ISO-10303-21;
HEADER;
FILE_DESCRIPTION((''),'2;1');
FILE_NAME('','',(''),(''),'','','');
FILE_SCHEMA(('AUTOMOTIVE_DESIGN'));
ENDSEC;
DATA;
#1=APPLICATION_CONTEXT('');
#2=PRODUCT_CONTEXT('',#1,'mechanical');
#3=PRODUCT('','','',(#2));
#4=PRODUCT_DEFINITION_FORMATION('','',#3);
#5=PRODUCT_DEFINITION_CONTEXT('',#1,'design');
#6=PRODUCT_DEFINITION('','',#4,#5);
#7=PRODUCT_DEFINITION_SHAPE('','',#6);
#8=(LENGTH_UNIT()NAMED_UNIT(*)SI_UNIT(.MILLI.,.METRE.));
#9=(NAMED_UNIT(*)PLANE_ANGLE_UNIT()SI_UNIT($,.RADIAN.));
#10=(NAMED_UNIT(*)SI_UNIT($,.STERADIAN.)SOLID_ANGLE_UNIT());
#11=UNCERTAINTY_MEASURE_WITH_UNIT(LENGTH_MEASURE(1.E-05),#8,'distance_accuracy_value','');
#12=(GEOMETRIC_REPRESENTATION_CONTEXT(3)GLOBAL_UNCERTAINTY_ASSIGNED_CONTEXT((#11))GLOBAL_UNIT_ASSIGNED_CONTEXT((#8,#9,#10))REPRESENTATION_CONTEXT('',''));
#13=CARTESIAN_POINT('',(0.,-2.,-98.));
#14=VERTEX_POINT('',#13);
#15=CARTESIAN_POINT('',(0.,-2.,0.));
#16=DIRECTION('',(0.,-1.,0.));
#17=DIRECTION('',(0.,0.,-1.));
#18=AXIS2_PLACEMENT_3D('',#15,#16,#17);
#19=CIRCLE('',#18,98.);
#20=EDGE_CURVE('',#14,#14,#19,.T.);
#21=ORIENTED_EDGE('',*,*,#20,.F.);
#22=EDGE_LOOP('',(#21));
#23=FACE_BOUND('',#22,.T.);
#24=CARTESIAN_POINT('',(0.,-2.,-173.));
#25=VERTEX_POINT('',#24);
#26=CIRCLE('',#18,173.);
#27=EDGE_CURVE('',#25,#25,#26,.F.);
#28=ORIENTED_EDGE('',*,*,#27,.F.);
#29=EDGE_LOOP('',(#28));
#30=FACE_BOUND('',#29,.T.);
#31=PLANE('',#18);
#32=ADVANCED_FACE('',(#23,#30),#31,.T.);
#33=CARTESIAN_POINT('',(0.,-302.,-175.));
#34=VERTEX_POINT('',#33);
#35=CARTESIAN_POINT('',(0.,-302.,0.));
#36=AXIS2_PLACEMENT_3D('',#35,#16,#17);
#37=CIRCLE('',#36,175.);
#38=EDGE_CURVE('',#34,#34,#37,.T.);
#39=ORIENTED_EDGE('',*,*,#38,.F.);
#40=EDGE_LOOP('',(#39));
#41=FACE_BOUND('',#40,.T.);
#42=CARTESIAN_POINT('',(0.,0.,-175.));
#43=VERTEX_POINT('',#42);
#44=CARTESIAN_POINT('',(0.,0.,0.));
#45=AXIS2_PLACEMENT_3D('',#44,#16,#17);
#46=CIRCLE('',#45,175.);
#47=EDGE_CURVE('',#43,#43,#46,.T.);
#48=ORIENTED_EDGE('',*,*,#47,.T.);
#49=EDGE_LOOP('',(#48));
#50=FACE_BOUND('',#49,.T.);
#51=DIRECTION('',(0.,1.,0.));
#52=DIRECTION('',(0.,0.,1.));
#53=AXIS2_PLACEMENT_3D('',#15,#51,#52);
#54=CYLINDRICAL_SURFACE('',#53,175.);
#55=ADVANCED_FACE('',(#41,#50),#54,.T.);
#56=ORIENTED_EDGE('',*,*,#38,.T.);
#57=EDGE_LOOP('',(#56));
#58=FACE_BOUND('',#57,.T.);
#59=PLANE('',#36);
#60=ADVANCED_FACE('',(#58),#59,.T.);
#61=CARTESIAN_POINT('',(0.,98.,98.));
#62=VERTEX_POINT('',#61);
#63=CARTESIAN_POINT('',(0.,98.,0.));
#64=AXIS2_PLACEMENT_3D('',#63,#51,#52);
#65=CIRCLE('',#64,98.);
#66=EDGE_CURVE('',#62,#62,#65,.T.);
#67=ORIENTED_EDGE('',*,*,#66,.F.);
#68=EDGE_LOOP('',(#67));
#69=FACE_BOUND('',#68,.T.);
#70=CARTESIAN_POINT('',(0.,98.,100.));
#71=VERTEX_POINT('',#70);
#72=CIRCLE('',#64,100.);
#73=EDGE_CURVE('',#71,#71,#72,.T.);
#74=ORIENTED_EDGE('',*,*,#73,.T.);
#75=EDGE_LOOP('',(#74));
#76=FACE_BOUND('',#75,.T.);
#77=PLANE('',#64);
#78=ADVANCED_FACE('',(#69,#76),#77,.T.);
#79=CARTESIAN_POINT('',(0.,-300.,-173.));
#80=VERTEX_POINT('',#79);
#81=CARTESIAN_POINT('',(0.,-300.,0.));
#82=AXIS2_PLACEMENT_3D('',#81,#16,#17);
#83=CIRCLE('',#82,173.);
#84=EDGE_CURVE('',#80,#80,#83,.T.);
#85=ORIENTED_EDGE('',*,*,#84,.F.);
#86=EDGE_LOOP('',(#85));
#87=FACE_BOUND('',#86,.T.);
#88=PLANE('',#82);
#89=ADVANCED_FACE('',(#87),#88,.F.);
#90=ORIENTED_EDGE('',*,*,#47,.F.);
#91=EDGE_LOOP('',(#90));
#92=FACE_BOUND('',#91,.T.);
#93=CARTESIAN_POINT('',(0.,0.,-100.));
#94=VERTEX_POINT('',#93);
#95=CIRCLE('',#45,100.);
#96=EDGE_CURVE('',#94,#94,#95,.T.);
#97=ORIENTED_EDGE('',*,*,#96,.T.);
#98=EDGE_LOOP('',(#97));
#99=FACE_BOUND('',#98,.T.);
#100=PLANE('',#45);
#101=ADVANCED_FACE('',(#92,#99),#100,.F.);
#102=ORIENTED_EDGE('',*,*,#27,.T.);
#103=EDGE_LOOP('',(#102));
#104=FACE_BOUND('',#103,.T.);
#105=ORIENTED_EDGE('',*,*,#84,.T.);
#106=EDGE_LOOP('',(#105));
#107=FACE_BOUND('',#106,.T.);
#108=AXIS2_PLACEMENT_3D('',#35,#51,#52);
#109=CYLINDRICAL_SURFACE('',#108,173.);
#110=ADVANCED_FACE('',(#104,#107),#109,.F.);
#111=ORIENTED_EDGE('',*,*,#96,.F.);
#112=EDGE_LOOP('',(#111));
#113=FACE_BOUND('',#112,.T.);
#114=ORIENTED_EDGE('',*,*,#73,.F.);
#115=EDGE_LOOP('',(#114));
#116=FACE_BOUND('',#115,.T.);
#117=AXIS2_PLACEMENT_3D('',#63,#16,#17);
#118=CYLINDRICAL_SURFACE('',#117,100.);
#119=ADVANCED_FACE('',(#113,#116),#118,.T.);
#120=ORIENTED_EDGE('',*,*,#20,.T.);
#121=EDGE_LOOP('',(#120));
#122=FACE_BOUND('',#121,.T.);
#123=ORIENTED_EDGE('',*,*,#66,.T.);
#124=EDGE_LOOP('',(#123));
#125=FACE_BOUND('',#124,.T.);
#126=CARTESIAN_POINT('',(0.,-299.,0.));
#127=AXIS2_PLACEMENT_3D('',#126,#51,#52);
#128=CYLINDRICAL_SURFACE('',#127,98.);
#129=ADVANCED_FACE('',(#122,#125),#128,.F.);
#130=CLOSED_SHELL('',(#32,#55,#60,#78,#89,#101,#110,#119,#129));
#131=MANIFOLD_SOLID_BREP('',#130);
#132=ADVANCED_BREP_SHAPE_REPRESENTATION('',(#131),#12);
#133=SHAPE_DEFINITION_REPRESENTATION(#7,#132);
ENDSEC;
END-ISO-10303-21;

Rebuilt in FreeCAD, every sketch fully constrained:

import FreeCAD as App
import Part
import Sketcher

doc = App.newDocument("Part")
body = doc.addObject("PartDesign::Body", "Body")

# Sketch on XZ plane
sketch1 = body.newObject("Sketcher::SketchObject", "Sketch")
sketch1.AttachmentSupport = (doc.getObject("XZ_Plane"), [""])
sketch1.MapMode = "FlatFace"
sketch1.addGeometry(Part.Circle(App.Vector(0, 0, 0), App.Vector(0, 0, 1), 100), False)
sketch1.addConstraint([
    Sketcher.Constraint("Coincident", 0, 3, -1, 1),
    Sketcher.Constraint("Diameter", 0, 200.0),
])
pad1 = body.newObject("PartDesign::Pad", "Pad")
pad1.Profile = sketch1
pad1.Length = 98
pad1.Reversed = True

# Sketch on XZ plane
sketch2 = body.newObject("Sketcher::SketchObject", "Sketch001")
sketch2.AttachmentSupport = (doc.getObject("XZ_Plane"), [""])
sketch2.MapMode = "FlatFace"
sketch2.AttachmentOffset = App.Placement(App.Vector(0, 0, -98), App.Rotation())
sketch2.addGeometry(Part.Circle(App.Vector(0, 0, 0), App.Vector(0, 0, 1), 98), False)
sketch2.addConstraint([
    Sketcher.Constraint("Coincident", 0, 3, -1, 1),
    Sketcher.Constraint("Diameter", 0, 196.0),
])
pocket1 = body.newObject("PartDesign::Pocket", "Pocket")
pocket1.Profile = sketch2
pocket1.Length = 397
pocket1.Reversed = True

# Sketch on XZ plane
sketch3 = body.newObject("Sketcher::SketchObject", "Sketch002")
sketch3.AttachmentSupport = (doc.getObject("XZ_Plane"), [""])
sketch3.MapMode = "FlatFace"
sketch3.addGeometry([
    Part.Circle(App.Vector(0, 0, 0), App.Vector(0, 0, 1), 175),
    Part.Circle(App.Vector(0, 0, 0), App.Vector(0, 0, 1), 98),
], False)
sketch3.addConstraint([
    Sketcher.Constraint("Coincident", 0, 3, -1, 1),
    Sketcher.Constraint("Coincident", 1, 3, -1, 1),
    Sketcher.Constraint("Diameter", 0, 350.0),
    Sketcher.Constraint("Diameter", 1, 196.0),
])
pad2 = body.newObject("PartDesign::Pad", "Pad001")
pad2.Profile = sketch3
pad2.Length = 2

# Sketch on XZ plane
sketch4 = body.newObject("Sketcher::SketchObject", "Sketch003")
sketch4.AttachmentSupport = (doc.getObject("XZ_Plane"), [""])
sketch4.MapMode = "FlatFace"
sketch4.AttachmentOffset = App.Placement(App.Vector(0, 0, 2), App.Rotation())
sketch4.addGeometry([
    Part.Circle(App.Vector(0, 0, 0), App.Vector(0, 0, 1), 175),
    Part.Circle(App.Vector(0, 0, 0), App.Vector(0, 0, 1), 173),
], False)
sketch4.addConstraint([
    Sketcher.Constraint("Coincident", 0, 3, -1, 1),
    Sketcher.Constraint("Coincident", 1, 3, -1, 1),
    Sketcher.Constraint("Diameter", 0, 350.0),
    Sketcher.Constraint("Diameter", 1, 346.0),
])
pad3 = body.newObject("PartDesign::Pad", "Pad002")
pad3.Profile = sketch4
pad3.Length = 300

# Sketch on XZ plane
sketch5 = body.newObject("Sketcher::SketchObject", "Sketch004")
sketch5.AttachmentSupport = (doc.getObject("XZ_Plane"), [""])
sketch5.MapMode = "FlatFace"
sketch5.AttachmentOffset = App.Placement(App.Vector(0, 0, 302), App.Rotation())
sketch5.addGeometry(Part.Circle(App.Vector(0, 0, 0), App.Vector(0, 0, 1), 175), False)
sketch5.addConstraint([
    Sketcher.Constraint("Coincident", 0, 3, -1, 1),
    Sketcher.Constraint("Diameter", 0, 350.0),
])
pad4 = body.newObject("PartDesign::Pad", "Pad003")
pad4.Profile = sketch5
pad4.Length = 2
pad4.Reversed = True

doc.recompute()
